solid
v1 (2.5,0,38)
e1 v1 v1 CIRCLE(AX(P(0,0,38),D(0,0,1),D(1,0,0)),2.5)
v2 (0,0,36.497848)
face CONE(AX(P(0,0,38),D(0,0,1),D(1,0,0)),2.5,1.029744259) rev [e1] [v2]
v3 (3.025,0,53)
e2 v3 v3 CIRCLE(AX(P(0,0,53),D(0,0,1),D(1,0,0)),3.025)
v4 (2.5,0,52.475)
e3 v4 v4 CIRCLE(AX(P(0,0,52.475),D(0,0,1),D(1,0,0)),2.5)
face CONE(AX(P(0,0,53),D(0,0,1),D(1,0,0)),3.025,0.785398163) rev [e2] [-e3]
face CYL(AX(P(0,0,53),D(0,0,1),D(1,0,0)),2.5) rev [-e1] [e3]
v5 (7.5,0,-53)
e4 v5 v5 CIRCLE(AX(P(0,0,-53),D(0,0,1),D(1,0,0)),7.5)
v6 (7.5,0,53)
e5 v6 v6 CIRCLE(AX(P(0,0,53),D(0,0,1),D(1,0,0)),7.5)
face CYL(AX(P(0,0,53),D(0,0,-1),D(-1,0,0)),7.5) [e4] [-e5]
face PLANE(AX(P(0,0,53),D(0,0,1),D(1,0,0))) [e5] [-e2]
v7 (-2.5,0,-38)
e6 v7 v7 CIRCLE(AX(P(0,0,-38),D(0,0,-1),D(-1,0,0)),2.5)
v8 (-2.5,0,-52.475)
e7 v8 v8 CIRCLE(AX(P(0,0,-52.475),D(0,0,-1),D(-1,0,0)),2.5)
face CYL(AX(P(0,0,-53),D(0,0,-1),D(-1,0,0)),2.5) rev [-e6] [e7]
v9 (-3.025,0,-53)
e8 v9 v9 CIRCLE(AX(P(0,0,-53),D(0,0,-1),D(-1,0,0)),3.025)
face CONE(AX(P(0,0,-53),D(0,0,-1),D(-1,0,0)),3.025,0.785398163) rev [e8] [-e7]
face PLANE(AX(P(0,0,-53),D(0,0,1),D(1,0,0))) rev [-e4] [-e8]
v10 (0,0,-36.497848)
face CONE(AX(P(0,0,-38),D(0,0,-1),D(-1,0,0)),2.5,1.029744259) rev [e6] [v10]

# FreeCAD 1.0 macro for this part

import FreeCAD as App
import Part
import Sketcher
Q = App.Units.Quantity


def add_polygon(sketch, points):
    """Adds a closed chain of lines whose ends are joined by coincident constraints."""
    first, n = sketch.GeometryCount, len(points)
    for a, b in zip(points, points[1:] + points[:1]):
        sketch.addGeometry(Part.LineSegment(App.Vector(*a, 0), App.Vector(*b, 0)), False)
    for i in range(n):
        sketch.addConstraint(Sketcher.Constraint("Coincident", first + i, 2, first + (i + 1) % n, 1))

doc = App.newDocument("Part")
params = doc.addObject("Spreadsheet::Sheet", "Params")
for row, (alias, value) in enumerate([
    ("sketch1_diameter", "15 mm"),
    ("pad1_length", "106 mm"),
    ("groove_angle", "360 deg"),
], start=1):
    params.set(f"A{row}", alias)
    params.set(f"B{row}", "=" + value)
    params.setAlias(f"B{row}", alias)

body = doc.addObject("PartDesign::Body", "Body")

# Sketch on XY plane
sketch1 = doc.addObject("Sketcher::SketchObject", "Sketch")
body.addObject(sketch1)
sketch1.AttachmentSupport = (doc.XY_Plane, [""])
sketch1.MapMode = "FlatFace"
sketch1.addGeometry(Part.Circle(App.Vector(0, 0, 0), App.Vector(0, 0, 1), 8), False)
sketch1.addConstraint([
    Sketcher.Constraint("Coincident", 0, 3, -1, 1),
    Sketcher.Constraint("Diameter", 0, Q("15 mm")),
])
sketch1.setExpression("Constraints[1]", "Params.sketch1_diameter")
pad1 = doc.addObject("PartDesign::Pad", "Pad")
body.addObject(pad1)
pad1.Profile = sketch1
pad1.setExpression("Length", "Params.pad1_length")
pad1.Midplane = True

# Sketch on YZ plane
sketch2 = doc.addObject("Sketcher::SketchObject", "Sketch001")
body.addObject(sketch2)
sketch2.AttachmentSupport = (doc.YZ_Plane, [""])
sketch2.MapMode = "FlatFace"
add_polygon(sketch2, [(0, 36.5), (0, 53), (-3, 53), (-2.5, 52.5), (-2.5, 38)])  # lines 0-4
sketch2.addConstraint([
    Sketcher.Constraint("Vertical", 0),
    Sketcher.Constraint("Horizontal", 1),
    Sketcher.Constraint("Vertical", 3),
    Sketcher.Constraint("PointOnObject", 0, 2, -2),
    Sketcher.Constraint("Angle", 2, Q("-45 deg")),
    Sketcher.Constraint("Angle", 4, Q("-31 deg")),
    Sketcher.Constraint("DistanceY", -1, 1, 0, 2, Q("53 mm")),
    Sketcher.Constraint("DistanceY", -1, 1, 3, 2, Q("38 mm")),
    Sketcher.Constraint("DistanceX", 2, 2, -1, 1, Q("2.5 mm")),
    Sketcher.Constraint("DistanceX", 1, 2, 1, 1, Q("3.025 mm")),
])
groove = doc.addObject("PartDesign::Groove", "Groove")
body.addObject(groove)
groove.Profile = sketch2
groove.ReferenceAxis = (sketch2, ["V_Axis"])
groove.setExpression("Angle", "Params.groove_angle")
doc.recompute()

mirrored = doc.addObject("PartDesign::Mirrored", "Mirrored")
body.addObject(mirrored)
mirrored.Originals = [groove]
mirrored.MirrorPlane = (doc.XY_Plane, [""])
body.Tip = mirrored

doc.recompute()
